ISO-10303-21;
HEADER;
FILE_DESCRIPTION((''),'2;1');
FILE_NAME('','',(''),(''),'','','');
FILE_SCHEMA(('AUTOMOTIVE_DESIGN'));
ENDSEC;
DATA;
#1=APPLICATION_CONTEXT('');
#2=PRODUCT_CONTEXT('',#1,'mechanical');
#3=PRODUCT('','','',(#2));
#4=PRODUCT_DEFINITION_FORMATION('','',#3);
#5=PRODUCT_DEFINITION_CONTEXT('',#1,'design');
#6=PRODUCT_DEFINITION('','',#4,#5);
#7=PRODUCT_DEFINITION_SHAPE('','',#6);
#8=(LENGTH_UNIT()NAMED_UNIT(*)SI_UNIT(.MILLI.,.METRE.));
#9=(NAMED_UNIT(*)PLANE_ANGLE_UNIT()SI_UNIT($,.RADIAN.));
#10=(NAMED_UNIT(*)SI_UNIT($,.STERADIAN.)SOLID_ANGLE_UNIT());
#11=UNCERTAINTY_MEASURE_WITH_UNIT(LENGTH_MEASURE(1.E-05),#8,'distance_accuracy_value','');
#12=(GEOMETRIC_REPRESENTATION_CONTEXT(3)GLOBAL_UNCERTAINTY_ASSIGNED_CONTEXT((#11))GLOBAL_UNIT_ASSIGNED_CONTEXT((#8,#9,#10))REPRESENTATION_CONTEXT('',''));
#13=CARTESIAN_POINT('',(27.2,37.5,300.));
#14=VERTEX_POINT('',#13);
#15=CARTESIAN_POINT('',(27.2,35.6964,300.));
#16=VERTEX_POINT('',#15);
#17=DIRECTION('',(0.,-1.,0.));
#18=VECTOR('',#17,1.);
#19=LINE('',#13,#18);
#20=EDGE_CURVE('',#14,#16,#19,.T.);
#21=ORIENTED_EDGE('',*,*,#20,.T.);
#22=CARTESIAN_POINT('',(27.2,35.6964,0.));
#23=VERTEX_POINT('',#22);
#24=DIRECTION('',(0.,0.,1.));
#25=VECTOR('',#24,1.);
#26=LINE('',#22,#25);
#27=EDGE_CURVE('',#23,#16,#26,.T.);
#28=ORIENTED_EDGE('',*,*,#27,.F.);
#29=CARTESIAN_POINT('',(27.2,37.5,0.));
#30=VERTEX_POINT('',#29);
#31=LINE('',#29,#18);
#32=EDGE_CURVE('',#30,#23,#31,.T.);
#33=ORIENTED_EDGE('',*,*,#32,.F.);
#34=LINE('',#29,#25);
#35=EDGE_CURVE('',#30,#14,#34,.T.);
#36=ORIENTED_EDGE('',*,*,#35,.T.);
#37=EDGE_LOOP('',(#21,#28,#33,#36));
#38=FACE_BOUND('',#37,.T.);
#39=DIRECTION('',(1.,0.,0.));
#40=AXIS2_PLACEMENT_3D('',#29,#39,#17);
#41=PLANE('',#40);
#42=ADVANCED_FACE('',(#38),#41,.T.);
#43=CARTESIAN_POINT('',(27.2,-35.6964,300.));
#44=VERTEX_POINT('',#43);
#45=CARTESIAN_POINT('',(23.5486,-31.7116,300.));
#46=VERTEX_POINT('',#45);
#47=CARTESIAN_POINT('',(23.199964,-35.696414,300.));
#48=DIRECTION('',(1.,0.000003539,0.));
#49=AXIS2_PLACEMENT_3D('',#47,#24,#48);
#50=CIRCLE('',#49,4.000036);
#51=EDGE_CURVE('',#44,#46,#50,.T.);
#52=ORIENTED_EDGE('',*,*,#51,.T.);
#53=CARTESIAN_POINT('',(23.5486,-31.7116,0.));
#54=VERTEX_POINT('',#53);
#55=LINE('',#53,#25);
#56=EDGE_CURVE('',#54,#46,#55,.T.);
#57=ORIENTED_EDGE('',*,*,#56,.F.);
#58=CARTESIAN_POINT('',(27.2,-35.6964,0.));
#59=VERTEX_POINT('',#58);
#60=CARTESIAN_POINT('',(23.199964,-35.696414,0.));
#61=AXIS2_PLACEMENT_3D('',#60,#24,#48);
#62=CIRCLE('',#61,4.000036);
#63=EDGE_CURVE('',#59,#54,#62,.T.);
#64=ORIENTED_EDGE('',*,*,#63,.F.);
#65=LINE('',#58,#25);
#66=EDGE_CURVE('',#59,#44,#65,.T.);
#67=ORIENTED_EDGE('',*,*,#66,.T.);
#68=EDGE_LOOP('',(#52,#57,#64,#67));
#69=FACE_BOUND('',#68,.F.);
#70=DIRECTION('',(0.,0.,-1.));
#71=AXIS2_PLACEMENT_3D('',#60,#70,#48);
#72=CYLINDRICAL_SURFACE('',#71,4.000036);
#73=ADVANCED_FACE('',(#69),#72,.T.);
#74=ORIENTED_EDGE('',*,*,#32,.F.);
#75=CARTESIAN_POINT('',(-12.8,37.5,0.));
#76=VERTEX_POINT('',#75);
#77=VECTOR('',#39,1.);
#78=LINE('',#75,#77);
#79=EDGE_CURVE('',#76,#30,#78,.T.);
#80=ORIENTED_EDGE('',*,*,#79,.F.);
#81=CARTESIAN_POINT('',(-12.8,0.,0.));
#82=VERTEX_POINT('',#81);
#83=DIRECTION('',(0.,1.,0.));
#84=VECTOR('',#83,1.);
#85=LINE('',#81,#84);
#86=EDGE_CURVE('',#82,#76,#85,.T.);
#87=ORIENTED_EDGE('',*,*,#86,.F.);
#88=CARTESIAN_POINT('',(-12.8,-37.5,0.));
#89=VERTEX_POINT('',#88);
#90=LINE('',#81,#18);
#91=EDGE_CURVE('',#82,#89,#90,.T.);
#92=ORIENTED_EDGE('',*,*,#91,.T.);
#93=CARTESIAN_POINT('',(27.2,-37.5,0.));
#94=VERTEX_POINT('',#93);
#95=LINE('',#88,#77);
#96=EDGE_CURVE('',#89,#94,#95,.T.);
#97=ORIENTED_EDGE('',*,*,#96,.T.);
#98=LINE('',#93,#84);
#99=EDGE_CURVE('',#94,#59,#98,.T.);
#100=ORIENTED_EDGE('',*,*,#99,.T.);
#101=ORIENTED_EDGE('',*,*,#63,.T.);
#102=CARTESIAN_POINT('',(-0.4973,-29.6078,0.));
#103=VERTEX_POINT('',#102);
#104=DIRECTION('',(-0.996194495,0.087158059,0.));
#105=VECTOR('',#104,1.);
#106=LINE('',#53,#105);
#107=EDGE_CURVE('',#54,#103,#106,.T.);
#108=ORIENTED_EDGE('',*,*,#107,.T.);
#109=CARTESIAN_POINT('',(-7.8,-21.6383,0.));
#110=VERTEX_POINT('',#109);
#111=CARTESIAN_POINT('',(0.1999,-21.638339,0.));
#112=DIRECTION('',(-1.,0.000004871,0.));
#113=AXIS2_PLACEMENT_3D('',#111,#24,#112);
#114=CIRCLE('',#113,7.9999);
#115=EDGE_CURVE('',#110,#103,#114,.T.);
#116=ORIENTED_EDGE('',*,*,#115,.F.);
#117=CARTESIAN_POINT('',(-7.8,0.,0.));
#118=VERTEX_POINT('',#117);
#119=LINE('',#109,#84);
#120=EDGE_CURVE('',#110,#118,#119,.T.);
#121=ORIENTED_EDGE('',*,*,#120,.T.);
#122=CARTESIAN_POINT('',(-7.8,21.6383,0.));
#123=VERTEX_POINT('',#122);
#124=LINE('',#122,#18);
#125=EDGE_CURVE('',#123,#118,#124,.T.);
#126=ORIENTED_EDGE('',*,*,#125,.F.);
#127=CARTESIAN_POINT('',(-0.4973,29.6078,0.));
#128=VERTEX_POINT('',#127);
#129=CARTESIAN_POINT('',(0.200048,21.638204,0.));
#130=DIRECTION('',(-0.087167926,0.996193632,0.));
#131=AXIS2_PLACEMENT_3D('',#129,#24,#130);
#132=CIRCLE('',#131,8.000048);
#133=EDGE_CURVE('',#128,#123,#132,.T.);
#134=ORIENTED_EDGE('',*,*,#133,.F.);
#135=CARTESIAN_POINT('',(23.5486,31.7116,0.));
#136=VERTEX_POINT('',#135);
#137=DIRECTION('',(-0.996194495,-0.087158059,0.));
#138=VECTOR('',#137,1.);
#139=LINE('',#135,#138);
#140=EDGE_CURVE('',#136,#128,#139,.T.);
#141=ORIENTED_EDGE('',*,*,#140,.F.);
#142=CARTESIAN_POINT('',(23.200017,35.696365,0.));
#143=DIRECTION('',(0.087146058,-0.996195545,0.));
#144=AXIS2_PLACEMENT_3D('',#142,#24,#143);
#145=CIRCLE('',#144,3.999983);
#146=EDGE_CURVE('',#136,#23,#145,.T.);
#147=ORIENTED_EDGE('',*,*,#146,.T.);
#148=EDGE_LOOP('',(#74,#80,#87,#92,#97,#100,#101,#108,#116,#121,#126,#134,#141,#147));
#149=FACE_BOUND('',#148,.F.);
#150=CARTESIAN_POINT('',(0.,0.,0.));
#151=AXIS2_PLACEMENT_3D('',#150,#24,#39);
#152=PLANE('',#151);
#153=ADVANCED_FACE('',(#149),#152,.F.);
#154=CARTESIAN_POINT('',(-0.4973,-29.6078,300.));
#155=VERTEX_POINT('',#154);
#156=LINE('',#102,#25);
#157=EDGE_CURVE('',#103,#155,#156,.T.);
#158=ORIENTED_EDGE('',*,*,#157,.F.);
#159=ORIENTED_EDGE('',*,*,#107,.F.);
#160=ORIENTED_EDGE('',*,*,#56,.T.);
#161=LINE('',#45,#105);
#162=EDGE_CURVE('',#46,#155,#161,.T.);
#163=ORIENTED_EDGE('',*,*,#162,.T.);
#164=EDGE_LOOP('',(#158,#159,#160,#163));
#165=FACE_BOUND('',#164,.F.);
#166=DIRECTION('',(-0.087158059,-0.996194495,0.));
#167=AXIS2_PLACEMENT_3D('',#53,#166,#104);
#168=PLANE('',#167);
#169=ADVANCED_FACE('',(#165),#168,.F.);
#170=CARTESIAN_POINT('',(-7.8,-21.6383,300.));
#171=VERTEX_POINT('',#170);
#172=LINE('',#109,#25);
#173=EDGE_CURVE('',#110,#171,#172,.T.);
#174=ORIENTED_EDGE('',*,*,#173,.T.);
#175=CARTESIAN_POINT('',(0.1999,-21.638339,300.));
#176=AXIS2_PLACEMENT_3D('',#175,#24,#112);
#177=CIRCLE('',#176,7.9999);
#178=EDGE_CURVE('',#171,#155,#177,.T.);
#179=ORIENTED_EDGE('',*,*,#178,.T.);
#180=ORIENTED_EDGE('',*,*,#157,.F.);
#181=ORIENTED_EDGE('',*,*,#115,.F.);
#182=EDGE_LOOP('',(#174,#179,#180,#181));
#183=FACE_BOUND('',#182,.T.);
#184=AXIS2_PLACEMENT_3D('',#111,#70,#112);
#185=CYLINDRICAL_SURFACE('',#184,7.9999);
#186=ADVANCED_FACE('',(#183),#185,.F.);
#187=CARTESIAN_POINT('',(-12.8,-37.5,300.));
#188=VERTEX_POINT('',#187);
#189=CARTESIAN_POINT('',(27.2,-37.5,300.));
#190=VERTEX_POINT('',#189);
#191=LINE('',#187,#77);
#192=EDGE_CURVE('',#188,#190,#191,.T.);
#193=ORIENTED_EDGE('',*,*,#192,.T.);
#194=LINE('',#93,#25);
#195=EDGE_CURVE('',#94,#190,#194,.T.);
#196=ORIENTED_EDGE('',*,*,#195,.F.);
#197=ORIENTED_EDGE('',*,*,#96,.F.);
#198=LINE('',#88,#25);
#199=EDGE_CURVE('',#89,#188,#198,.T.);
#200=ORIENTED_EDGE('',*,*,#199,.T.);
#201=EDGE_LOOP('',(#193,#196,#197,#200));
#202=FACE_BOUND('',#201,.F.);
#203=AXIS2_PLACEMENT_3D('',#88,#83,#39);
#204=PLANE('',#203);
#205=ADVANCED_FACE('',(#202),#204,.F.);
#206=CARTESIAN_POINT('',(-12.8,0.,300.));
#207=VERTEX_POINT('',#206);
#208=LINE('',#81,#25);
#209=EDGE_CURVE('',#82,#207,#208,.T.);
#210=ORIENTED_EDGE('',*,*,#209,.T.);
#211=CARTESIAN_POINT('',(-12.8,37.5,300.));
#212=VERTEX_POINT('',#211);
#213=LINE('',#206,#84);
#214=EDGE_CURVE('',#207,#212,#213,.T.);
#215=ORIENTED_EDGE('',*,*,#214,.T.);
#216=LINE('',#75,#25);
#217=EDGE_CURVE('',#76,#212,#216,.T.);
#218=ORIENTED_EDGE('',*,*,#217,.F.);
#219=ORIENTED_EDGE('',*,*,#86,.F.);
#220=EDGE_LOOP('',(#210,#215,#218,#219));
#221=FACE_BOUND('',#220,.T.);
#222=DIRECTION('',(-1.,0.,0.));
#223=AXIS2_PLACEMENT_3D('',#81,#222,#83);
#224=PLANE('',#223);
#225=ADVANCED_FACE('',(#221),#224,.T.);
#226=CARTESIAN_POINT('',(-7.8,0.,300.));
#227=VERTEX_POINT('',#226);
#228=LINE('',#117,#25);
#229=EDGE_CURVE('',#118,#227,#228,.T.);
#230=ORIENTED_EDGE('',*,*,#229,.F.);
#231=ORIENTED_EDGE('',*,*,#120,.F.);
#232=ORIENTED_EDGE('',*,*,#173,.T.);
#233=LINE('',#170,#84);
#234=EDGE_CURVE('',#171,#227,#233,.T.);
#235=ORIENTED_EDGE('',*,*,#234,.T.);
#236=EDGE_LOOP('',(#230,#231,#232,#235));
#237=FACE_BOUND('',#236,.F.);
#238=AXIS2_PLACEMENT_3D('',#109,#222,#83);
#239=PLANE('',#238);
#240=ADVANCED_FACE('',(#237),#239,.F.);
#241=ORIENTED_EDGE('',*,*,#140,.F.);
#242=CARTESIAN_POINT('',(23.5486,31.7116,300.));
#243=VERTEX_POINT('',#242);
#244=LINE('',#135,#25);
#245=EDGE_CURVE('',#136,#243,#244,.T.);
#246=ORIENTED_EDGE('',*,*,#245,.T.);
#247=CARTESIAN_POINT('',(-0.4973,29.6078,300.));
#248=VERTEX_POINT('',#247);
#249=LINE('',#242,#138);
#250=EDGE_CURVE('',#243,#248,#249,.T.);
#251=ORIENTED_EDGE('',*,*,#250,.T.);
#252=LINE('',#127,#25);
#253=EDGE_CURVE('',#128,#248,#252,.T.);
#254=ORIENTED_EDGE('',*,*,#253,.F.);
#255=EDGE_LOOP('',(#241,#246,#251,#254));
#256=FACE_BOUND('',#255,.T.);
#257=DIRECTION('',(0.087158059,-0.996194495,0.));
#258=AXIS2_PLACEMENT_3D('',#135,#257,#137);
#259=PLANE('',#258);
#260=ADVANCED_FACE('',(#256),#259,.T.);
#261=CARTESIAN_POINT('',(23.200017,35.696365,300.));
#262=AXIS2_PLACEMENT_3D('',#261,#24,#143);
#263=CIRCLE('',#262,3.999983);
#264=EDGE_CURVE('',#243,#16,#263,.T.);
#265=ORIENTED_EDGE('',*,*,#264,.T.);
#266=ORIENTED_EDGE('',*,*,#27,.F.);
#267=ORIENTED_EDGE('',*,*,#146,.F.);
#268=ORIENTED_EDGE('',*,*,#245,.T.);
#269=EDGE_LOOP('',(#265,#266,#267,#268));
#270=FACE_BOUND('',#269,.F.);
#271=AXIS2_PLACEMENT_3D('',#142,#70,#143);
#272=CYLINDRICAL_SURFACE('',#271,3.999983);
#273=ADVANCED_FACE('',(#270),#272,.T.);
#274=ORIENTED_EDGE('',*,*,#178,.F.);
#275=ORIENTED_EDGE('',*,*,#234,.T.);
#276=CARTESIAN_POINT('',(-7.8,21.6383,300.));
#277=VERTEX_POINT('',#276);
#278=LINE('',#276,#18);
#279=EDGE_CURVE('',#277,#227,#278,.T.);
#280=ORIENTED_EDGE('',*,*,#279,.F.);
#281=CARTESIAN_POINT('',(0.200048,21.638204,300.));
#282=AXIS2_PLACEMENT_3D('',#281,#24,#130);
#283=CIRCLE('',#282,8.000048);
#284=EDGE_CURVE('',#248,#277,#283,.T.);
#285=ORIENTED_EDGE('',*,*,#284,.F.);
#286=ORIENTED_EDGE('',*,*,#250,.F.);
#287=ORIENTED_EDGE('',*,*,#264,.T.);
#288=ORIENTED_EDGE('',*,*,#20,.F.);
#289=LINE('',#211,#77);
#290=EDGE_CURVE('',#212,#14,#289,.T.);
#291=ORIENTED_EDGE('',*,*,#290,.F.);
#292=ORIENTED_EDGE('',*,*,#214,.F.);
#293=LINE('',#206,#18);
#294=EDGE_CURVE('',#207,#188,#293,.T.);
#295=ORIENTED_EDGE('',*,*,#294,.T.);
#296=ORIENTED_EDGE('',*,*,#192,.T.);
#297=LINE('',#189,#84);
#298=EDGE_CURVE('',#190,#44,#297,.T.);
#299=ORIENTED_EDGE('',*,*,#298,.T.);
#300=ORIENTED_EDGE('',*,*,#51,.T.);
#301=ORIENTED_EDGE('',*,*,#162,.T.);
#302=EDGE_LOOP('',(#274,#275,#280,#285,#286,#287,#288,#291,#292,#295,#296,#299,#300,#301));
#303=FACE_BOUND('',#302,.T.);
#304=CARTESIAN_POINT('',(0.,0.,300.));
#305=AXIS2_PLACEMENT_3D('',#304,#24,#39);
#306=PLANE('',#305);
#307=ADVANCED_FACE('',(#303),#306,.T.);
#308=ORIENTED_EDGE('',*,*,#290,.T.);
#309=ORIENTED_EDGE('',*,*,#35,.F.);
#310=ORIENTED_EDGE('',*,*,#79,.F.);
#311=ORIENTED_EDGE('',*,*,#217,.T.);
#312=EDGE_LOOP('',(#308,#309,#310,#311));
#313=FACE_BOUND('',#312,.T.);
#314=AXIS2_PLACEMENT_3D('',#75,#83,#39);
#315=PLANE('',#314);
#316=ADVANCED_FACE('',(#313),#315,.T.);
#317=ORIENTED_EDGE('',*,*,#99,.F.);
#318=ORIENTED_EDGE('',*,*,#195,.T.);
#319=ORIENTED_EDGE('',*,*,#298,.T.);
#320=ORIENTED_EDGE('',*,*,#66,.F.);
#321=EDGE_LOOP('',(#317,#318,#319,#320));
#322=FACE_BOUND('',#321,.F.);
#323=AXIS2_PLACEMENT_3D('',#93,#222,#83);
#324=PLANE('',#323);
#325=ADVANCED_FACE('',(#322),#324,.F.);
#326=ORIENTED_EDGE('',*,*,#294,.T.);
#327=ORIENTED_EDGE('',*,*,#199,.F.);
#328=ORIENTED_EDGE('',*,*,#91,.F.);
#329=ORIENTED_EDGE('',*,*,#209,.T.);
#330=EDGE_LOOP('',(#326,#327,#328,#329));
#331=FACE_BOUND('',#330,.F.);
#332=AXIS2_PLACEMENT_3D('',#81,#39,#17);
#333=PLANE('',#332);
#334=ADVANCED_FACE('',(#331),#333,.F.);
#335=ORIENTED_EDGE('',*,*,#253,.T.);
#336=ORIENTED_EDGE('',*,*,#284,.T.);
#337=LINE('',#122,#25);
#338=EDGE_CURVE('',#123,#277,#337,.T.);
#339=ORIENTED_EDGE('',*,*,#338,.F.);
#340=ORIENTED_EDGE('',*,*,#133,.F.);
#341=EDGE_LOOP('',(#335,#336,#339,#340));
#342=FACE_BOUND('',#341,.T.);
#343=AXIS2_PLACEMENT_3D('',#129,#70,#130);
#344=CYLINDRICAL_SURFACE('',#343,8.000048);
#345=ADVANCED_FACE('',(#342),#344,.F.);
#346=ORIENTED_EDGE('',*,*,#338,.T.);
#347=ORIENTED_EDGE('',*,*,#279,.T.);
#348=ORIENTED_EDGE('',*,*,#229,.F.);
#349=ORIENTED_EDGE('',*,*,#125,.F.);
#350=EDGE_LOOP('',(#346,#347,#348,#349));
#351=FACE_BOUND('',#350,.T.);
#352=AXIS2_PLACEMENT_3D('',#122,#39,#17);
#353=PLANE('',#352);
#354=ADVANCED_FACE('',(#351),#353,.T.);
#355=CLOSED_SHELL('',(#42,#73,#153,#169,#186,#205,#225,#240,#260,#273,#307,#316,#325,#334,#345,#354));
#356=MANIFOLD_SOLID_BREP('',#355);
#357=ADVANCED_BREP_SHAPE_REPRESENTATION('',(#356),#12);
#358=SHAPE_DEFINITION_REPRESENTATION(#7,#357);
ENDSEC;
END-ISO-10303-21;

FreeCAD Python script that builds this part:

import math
import FreeCAD as App
import Part
import Sketcher

V = App.Vector
Q = App.Units.Quantity

doc = App.newDocument("Part")
body = doc.addObject("PartDesign::Body", "Body")

sketch1 = doc.addObject("Sketcher::SketchObject", "Sketch")
body.addObject(sketch1)
sketch1.AttachmentSupport = (doc.XY_Plane, [""])
sketch1.MapMode = "FlatFace"
sketch1.addGeometry([
    Part.LineSegment(V(-12.8, 37.5, 0), V(-12.8, -37.5, 0)),
    Part.LineSegment(V(-12.8, -37.5, 0), V(27.2, -37.5, 0)),
    Part.LineSegment(V(27.2, -37.5, 0), V(27.2, -35.6964, 0)),
    Part.ArcOfCircle(Part.Circle(V(23.2, -35.6964, 0), V(0, 0, 1), 4), math.radians(0), math.radians(85.000354)),
    Part.LineSegment(V(23.5486, -31.7116, 0), V(-0.4973, -29.6078, 0)),
    Part.ArcOfCircle(Part.Circle(V(0.2, -21.6383, 0), V(0, 0, 1), 8), math.radians(180), math.radians(264.999578)),
    Part.LineSegment(V(-7.8, -21.6383, 0), V(-7.8, 21.6383, 0)),
    Part.ArcOfCircle(Part.Circle(V(0.2, 21.6383, 0), V(0, 0, 1), 7.999947), math.radians(95.000422), math.radians(180)),
    Part.LineSegment(V(-0.4973, 29.6078, 0), V(23.5486, 31.7116, 0)),
    Part.ArcOfCircle(Part.Circle(V(23.2, 35.6964, 0), V(0, 0, 1), 4.000019), math.radians(-85.000354), math.radians(0)),
    Part.LineSegment(V(27.2, 35.6964, 0), V(27.2, 37.5, 0)),
    Part.LineSegment(V(27.2, 37.5, 0), V(-12.8, 37.5, 0)),
], False)
sketch1.addConstraint([
    Sketcher.Constraint("Coincident", 0, 2, 1, 1),
    Sketcher.Constraint("Coincident", 1, 2, 2, 1),
    Sketcher.Constraint("Tangent", 2, 2, 3, 1),
    Sketcher.Constraint("Tangent", 3, 2, 4, 1),
    Sketcher.Constraint("Tangent", 4, 2, 5, 2),
    Sketcher.Constraint("Tangent", 5, 1, 6, 1),
    Sketcher.Constraint("Tangent", 6, 2, 7, 2),
    Sketcher.Constraint("Tangent", 7, 1, 8, 1),
    Sketcher.Constraint("Tangent", 8, 2, 9, 1),
    Sketcher.Constraint("Tangent", 9, 2, 10, 1),
    Sketcher.Constraint("Coincident", 10, 2, 11, 1),
    Sketcher.Constraint("Coincident", 11, 2, 0, 1),
    Sketcher.Constraint("Vertical", 0),
    Sketcher.Constraint("Horizontal", 1),
    Sketcher.Constraint("Vertical", 2),
    Sketcher.Constraint("Vertical", 6),
    Sketcher.Constraint("Vertical", 10),
    Sketcher.Constraint("Horizontal", 11),
    Sketcher.Constraint("Equal", 5, 7),
    Sketcher.Constraint("Equal", 3, 9),
    Sketcher.Constraint("Symmetric", 3, 3, 9, 3, -1),
    Sketcher.Constraint("Vertical", 4, 2, 7, 1),
    Sketcher.Constraint("Equal", 2, 10),
    Sketcher.Constraint("Radius", 3, Q("4 mm")),
    Sketcher.Constraint("Radius", 5, Q("8 mm")),
    Sketcher.Constraint("DistanceX", 1, 1, 1, 2, Q("40 mm")),
    Sketcher.Constraint("Angle", 8, Q("5.0001 deg")),
    Sketcher.Constraint("DistanceX", 0, 2, 5, 1, Q("5 mm")),
    Sketcher.Constraint("DistanceX", 0, 2, -1, 1, Q("12.8 mm")),
    Sketcher.Constraint("DistanceY", 0, 2, -1, 1, Q("37.5 mm")),
    Sketcher.Constraint("DistanceY", 5, 3, 8, 2, Q("53.35 mm")),
])
pad1 = doc.addObject("PartDesign::Pad", "Pad")
body.addObject(pad1)
pad1.Profile = sketch1
pad1.Length = 300

doc.recompute()
